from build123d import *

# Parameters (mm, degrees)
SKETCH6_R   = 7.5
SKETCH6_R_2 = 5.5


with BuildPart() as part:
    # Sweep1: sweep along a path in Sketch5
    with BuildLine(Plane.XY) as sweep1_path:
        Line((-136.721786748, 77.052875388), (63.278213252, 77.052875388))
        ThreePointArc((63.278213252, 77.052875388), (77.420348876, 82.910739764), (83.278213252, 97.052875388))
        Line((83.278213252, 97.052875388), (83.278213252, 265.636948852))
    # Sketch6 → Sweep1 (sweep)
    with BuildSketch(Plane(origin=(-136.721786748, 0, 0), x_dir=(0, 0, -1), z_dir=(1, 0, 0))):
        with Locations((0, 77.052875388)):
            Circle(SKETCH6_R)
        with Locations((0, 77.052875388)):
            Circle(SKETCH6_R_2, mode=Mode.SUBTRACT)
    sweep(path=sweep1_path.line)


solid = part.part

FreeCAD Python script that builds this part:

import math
import FreeCAD as App
import Part
import Sketcher

V = App.Vector

doc = App.newDocument("Part")
body = doc.addObject("PartDesign::Body", "Body")

sketch1 = doc.addObject("Sketcher::SketchObject", "Sketch")
body.addObject(sketch1)
sketch1.AttachmentSupport = (doc.YZ_Plane, [""])
sketch1.MapMode = "FlatFace"
sketch1.AttachmentOffset = App.Placement(V(0, 0, -136.721787), App.Rotation())
sketch1.addGeometry([
    Part.Circle(V(77, 0, 0), V(0, 0, 1), 8),
    Part.Circle(V(77, 0, 0), V(0, 0, 1), 6),
], False)
sketch1.addConstraint([
    Sketcher.Constraint("Coincident", 1, 3, 0, 3),
    Sketcher.Constraint("PointOnObject", 0, 3, -1),
    Sketcher.Constraint("Diameter", 0, 15.0),
    Sketcher.Constraint("Diameter", 1, 11.0),
    Sketcher.Constraint("DistanceX", -1, 1, 0, 3, 77.052875),
])

sketch2 = doc.addObject("Sketcher::SketchObject", "Sketch001")
body.addObject(sketch2)
sketch2.AttachmentSupport = (doc.XY_Plane, [""])
sketch2.MapMode = "FlatFace"
sketch2.addGeometry([
    Part.LineSegment(V(-137, 77, 0), V(63, 77, 0)),
    Part.ArcOfCircle(Part.Circle(V(63, 97, 0), V(0, 0, 1), 20), math.radians(-90), math.radians(0)),
    Part.LineSegment(V(83, 97, 0), V(83, 266, 0)),
], False)
sketch2.addConstraint([
    Sketcher.Constraint("Tangent", 0, 2, 1, 1),
    Sketcher.Constraint("Tangent", 1, 2, 2, 1),
    Sketcher.Constraint("Horizontal", 0),
    Sketcher.Constraint("Vertical", 2),
    Sketcher.Constraint("Radius", 1, 20.0),
    Sketcher.Constraint("DistanceX", 0, 1, 0, 2, 200.0),
    Sketcher.Constraint("DistanceY", 2, 1, 2, 2, 168.584073),
    Sketcher.Constraint("DistanceY", -1, 1, 2, 2, 265.636949),
    Sketcher.Constraint("DistanceX", -1, 1, 1, 3, 63.278213),
])
doc.recompute()

additivepipe = doc.addObject("PartDesign::AdditivePipe", "AdditivePipe")
body.addObject(additivepipe)
additivepipe.Profile = sketch1
additivepipe.Spine = (sketch2, ["Edge1", "Edge2", "Edge3"])

doc.recompute()
